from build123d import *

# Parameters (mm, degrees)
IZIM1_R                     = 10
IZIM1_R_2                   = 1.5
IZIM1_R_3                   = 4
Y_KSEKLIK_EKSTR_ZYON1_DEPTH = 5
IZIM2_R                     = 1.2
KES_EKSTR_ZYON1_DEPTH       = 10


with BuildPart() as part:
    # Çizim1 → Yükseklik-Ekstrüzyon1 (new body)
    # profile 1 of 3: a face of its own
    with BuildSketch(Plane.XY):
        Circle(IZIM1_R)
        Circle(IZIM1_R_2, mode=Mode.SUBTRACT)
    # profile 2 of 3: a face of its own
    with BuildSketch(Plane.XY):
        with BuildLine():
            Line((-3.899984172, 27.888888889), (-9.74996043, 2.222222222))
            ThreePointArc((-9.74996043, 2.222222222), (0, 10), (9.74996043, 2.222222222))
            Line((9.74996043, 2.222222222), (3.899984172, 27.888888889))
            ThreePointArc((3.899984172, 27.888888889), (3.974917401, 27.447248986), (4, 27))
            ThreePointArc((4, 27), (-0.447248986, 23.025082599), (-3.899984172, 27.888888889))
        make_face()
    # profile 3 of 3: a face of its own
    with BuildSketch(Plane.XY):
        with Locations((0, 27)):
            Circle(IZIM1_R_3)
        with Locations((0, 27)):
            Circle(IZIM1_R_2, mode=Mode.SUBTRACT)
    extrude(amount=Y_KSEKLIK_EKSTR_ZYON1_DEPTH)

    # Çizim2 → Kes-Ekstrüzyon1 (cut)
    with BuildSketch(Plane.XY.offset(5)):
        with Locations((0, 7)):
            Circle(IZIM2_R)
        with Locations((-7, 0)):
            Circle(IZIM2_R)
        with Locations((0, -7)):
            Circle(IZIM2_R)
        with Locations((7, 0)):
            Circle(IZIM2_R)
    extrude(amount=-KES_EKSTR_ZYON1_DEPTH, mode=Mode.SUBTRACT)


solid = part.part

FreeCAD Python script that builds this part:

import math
import FreeCAD as App
import Part
import Sketcher
from FreeCAD import Vector
Q = App.Units.Quantity

doc = App.newDocument("Part")
body = doc.addObject("PartDesign::Body", "Body")

sketch1 = doc.addObject("Sketcher::SketchObject", "Sketch")
body.addObject(sketch1)
sketch1.AttachmentSupport = (doc.XY_Plane, [""])
sketch1.MapMode = "FlatFace"
sketch1.addGeometry([
    Part.LineSegment(Vector(9.7, 2.2, 0), Vector(3.9, 27.9, 0)),
    Part.ArcOfCircle(Part.Circle(Vector(0, 27, 0), Vector(0, 0, 1), 4), math.radians(13), math.radians(167)),
    Part.LineSegment(Vector(-3.9, 27.9, 0), Vector(-9.7, 2.2, 0)),
    Part.ArcOfCircle(Part.Circle(Vector(0, 0, 0), Vector(0, 0, 1), 10), math.radians(167), math.radians(373)),
    Part.Circle(Vector(0, 0, 0), Vector(0, 0, 1), 1.5),
    Part.Circle(Vector(0, 27, 0), Vector(0, 0, 1), 1.5),
], False)
sketch1.addConstraint([
    Sketcher.Constraint("Tangent", 0, 2, 1, 1),
    Sketcher.Constraint("Tangent", 1, 2, 2, 1),
    Sketcher.Constraint("Tangent", 2, 2, 3, 1),
    Sketcher.Constraint("Tangent", 3, 2, 0, 1),
    Sketcher.Constraint("Coincident", 3, 3, -1, 1),
    Sketcher.Constraint("Coincident", 4, 3, -1, 1),
    Sketcher.Constraint("Coincident", 5, 3, 1, 3),
    Sketcher.Constraint("Equal", 4, 5),
    Sketcher.Constraint("PointOnObject", 1, 3, -2),
    Sketcher.Constraint("Diameter", 4, Q("3 mm")),
    Sketcher.Constraint("Radius", 1, Q("4 mm")),
    Sketcher.Constraint("Radius", 3, Q("10 mm")),
    Sketcher.Constraint("DistanceY", -1, 1, 1, 3, Q("27 mm")),
])
pad1 = doc.addObject("PartDesign::Pad", "Pad")
body.addObject(pad1)
pad1.Profile = sketch1
pad1.Length = 5

sketch2 = doc.addObject("Sketcher::SketchObject", "Sketch001")
body.addObject(sketch2)
sketch2.AttachmentSupport = (doc.XY_Plane, [""])
sketch2.MapMode = "FlatFace"
sketch2.AttachmentOffset = App.Placement(Vector(0, 0, 5), App.Rotation())
sketch2.addGeometry([
    Part.Circle(Vector(0, 7, 0), Vector(0, 0, 1), 1.2),
    Part.Circle(Vector(-7, 0, 0), Vector(0, 0, 1), 1.2),
    Part.Circle(Vector(0, -7, 0), Vector(0, 0, 1), 1.2),
    Part.Circle(Vector(7, 0, 0), Vector(0, 0, 1), 1.2),
], False)
sketch2.addConstraint([
    Sketcher.Constraint("Equal", 0, 1),
    Sketcher.Constraint("Equal", 1, 2),
    Sketcher.Constraint("Equal", 2, 3),
    Sketcher.Constraint("Symmetric", 0, 3, 2, 3, -1, 1),
    Sketcher.Constraint("Symmetric", 1, 3, 3, 3, -1, 1),
    Sketcher.Constraint("PointOnObject", 0, 3, -2),
    Sketcher.Constraint("PointOnObject", 1, 3, -1),
    Sketcher.Constraint("Diameter", 0, Q("2.4 mm")),
    Sketcher.Constraint("DistanceY", -1, 1, 0, 3, Q("7 mm")),
    Sketcher.Constraint("DistanceX", 1, 3, -1, 1, Q("7 mm")),
])
pocket1 = doc.addObject("PartDesign::Pocket", "Pocket")
body.addObject(pocket1)
pocket1.Profile = sketch2
pocket1.Length = 10

doc.recompute()
